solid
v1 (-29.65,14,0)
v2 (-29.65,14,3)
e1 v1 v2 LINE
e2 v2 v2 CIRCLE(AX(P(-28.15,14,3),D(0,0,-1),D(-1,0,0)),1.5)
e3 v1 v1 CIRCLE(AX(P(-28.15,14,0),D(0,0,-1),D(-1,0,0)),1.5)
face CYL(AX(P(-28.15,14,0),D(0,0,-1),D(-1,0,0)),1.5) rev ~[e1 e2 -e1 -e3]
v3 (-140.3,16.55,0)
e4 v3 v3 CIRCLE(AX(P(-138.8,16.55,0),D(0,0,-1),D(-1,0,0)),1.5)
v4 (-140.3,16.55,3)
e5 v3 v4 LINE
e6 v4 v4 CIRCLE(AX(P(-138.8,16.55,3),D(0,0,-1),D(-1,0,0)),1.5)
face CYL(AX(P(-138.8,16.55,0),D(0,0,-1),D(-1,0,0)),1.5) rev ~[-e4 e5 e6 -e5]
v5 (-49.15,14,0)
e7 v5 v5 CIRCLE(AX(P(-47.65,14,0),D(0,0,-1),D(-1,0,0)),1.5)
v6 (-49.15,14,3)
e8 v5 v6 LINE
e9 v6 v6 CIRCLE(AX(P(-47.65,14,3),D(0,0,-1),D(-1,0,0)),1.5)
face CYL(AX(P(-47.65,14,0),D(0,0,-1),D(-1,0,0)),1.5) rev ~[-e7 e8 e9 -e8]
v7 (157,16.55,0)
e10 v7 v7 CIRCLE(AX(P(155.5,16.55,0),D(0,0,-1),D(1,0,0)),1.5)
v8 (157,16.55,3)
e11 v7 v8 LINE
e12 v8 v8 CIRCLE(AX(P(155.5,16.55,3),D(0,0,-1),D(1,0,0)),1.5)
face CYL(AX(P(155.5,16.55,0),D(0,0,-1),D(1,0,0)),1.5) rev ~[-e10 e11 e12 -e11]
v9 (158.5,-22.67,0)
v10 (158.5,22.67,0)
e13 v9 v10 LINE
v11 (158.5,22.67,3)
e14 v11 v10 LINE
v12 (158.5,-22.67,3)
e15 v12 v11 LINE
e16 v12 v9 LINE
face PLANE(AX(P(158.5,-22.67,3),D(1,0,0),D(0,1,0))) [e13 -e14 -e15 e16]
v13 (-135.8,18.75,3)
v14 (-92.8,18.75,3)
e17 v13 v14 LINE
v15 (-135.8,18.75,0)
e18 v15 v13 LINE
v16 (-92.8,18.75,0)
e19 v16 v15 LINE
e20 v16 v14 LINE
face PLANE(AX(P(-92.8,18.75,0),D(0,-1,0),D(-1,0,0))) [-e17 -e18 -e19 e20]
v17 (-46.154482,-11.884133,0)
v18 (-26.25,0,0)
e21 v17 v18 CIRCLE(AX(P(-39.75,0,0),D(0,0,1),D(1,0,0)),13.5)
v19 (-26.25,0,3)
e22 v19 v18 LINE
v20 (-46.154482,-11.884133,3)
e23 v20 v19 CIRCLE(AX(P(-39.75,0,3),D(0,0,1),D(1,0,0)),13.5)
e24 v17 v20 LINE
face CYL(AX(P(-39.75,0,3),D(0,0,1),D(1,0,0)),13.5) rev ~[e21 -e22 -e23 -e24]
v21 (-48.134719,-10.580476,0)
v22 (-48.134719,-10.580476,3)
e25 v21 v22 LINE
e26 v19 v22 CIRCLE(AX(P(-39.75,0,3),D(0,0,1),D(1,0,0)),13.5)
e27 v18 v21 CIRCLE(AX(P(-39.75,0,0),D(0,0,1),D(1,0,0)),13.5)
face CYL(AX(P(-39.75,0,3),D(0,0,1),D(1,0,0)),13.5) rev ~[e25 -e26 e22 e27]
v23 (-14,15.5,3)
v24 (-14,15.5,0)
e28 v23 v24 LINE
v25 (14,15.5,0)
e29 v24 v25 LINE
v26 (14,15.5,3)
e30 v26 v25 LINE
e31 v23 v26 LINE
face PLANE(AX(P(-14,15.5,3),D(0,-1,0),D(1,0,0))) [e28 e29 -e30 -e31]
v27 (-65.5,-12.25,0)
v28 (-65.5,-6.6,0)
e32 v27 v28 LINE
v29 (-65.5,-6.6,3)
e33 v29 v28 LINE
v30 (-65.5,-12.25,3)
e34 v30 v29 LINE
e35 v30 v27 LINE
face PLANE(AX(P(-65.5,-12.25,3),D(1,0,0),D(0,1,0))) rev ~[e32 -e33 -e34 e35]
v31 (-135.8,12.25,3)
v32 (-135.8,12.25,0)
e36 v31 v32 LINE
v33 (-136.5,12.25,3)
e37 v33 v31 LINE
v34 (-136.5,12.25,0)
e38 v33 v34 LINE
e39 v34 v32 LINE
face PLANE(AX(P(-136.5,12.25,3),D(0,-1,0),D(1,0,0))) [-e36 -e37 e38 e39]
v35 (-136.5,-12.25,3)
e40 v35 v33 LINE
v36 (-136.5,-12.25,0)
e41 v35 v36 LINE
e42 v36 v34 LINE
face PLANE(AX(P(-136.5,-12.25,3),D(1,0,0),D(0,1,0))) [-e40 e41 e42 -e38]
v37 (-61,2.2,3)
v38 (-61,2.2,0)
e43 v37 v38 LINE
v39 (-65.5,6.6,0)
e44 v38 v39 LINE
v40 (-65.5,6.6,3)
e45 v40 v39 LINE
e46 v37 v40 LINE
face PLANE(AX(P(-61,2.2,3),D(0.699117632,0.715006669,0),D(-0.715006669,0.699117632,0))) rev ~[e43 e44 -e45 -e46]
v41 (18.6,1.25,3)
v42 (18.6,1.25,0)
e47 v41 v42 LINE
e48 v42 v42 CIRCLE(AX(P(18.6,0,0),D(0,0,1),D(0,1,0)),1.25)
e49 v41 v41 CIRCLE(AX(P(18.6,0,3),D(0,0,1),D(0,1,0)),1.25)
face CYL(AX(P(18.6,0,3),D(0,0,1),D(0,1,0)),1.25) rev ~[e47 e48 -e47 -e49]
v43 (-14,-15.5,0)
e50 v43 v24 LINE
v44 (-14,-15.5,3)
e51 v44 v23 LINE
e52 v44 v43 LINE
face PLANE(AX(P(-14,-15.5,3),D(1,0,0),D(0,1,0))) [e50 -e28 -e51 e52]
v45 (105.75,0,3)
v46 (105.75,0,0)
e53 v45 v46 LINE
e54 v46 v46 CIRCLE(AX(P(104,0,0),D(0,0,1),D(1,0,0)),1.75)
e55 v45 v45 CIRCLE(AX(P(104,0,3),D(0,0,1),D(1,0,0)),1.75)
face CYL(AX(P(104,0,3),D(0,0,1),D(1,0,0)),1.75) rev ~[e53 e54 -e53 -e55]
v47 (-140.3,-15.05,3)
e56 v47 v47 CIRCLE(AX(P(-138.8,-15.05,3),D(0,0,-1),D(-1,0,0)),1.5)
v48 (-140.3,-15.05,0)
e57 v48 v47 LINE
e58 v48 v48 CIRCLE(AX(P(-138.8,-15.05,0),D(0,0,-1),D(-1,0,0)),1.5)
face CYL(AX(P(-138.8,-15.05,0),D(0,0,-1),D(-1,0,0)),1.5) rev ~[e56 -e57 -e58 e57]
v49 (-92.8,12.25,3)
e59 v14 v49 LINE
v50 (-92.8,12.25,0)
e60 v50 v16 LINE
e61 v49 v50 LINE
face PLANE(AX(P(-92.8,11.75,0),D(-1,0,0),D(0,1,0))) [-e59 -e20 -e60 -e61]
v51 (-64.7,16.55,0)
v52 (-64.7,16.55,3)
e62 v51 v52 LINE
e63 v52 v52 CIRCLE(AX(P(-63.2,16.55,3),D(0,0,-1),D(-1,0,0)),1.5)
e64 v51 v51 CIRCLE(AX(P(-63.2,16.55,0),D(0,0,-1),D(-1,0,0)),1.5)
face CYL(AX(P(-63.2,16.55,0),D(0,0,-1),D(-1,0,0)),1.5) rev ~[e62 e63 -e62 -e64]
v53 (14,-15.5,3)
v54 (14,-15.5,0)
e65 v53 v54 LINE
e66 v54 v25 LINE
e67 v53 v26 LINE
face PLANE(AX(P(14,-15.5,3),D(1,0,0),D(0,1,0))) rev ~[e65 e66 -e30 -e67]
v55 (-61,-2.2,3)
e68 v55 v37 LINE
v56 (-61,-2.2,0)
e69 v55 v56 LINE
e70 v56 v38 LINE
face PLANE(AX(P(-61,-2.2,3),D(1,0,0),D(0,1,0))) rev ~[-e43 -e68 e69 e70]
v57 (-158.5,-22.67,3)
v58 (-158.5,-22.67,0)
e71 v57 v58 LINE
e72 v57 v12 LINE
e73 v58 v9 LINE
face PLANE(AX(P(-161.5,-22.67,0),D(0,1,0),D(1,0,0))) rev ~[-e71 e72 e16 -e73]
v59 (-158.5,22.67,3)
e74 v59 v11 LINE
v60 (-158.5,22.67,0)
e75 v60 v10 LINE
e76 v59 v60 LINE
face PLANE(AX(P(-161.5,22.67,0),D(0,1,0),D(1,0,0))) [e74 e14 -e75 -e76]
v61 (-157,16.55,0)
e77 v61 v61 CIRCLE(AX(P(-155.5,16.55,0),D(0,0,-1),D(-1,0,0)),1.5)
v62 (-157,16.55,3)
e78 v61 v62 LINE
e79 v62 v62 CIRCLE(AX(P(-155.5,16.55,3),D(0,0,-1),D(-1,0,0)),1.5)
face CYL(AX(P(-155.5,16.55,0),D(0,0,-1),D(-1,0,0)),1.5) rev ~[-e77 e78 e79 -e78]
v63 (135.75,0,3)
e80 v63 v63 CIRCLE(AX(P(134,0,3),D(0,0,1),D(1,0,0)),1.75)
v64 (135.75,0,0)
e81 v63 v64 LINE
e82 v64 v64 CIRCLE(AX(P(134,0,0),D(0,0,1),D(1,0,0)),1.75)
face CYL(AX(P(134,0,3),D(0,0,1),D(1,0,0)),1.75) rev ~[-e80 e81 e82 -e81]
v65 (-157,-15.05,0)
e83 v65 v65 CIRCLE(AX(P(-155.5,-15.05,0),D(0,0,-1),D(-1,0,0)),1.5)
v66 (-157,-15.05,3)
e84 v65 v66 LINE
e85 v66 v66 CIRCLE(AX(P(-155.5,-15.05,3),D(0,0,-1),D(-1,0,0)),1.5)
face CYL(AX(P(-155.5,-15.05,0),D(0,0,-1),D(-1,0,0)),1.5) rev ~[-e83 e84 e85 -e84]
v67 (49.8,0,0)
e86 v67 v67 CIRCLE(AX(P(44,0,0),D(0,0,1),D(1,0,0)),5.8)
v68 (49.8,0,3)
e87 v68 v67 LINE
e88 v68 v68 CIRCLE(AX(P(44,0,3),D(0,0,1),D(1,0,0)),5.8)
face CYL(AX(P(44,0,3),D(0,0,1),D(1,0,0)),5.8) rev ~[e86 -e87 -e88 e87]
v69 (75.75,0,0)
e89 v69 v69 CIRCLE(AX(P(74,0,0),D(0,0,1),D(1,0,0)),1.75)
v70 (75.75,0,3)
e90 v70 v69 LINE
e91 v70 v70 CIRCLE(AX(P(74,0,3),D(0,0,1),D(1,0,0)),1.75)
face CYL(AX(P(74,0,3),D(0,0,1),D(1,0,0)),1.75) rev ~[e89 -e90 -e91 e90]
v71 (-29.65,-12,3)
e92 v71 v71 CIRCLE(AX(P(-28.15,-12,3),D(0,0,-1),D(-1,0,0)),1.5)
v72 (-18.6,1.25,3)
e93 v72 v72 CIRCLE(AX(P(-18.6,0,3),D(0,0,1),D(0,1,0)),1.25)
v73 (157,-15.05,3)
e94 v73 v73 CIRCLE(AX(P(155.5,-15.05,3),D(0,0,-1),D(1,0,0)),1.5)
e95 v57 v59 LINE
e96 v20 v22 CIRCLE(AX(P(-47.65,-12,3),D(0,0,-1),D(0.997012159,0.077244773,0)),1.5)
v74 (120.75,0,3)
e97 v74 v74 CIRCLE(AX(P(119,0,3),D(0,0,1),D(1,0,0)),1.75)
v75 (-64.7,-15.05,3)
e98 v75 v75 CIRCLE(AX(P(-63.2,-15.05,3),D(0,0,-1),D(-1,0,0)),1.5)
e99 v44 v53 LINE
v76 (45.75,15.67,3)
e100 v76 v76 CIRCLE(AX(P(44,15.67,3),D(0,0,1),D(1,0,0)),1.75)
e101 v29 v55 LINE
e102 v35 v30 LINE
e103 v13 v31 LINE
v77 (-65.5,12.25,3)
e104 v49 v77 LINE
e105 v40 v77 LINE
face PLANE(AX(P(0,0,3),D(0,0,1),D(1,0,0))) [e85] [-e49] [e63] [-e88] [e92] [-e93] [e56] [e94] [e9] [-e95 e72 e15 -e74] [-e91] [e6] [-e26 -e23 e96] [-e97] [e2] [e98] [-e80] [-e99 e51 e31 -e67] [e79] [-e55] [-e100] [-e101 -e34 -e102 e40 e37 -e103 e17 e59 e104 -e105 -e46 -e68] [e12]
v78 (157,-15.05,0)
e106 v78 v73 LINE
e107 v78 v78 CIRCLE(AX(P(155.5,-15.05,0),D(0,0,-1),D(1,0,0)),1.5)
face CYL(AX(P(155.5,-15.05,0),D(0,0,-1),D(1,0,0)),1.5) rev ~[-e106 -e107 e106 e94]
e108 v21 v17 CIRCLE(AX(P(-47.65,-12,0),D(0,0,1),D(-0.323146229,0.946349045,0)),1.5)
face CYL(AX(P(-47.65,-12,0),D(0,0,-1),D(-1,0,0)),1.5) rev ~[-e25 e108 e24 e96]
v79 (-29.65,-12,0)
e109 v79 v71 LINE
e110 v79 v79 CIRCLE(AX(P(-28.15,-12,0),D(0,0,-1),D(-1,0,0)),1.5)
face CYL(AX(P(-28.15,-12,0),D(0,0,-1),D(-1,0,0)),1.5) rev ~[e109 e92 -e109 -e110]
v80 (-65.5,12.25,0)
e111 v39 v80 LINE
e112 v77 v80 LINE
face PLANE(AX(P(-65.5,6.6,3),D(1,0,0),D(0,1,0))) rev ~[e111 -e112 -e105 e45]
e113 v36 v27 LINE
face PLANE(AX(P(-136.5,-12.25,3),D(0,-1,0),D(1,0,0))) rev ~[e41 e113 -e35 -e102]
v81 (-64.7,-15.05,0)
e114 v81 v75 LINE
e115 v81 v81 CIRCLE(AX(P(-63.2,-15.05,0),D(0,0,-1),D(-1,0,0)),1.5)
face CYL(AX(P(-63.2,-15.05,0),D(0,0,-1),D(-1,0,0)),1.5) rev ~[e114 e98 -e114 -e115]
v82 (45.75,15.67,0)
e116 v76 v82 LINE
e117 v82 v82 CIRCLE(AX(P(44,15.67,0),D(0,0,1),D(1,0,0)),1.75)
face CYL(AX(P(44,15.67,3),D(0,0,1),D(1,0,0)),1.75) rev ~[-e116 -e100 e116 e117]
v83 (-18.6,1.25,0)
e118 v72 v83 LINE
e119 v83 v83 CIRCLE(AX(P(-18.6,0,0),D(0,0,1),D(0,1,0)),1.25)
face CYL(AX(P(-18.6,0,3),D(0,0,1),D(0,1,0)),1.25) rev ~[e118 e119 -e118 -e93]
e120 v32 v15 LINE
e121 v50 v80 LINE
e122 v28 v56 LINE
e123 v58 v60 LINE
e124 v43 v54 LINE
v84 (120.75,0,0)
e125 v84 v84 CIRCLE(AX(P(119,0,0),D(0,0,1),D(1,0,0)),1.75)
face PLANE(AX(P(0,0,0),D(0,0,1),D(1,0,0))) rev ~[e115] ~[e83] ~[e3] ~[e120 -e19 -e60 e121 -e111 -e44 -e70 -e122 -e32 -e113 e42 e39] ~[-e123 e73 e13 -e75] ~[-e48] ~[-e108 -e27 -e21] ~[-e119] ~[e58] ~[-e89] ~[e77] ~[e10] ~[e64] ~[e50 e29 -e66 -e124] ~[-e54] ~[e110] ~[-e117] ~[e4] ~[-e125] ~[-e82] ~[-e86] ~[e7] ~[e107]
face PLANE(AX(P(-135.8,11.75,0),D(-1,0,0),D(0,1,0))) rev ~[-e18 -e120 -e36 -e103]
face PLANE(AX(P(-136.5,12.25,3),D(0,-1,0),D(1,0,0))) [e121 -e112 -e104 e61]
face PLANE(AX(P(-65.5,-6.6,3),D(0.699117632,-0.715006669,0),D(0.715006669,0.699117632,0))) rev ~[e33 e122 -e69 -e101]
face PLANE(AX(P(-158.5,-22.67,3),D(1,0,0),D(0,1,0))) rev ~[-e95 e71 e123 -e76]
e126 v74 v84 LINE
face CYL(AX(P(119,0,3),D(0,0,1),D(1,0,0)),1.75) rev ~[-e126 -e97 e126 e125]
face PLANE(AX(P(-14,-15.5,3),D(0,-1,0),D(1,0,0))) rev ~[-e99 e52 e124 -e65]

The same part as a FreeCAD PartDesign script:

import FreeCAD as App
import Part
import Sketcher

V = App.Vector


def add_polygon(sketch, points):
    """Adds a closed chain of lines whose ends are joined by coincident constraints."""
    first, n = sketch.GeometryCount, len(points)
    for a, b in zip(points, points[1:] + points[:1]):
        sketch.addGeometry(Part.LineSegment(App.Vector(*a, 0), App.Vector(*b, 0)), False)
    for i in range(n):
        sketch.addConstraint(Sketcher.Constraint("Coincident", first + i, 2, first + (i + 1) % n, 1))

doc = App.newDocument("Part")
body = doc.addObject("PartDesign::Body", "Body")

# Sketch on XY plane
sketch1 = body.newObject("Sketcher::SketchObject", "Sketch")
sketch1.AttachmentSupport = (doc.getObject("XY_Plane"), [""])
sketch1.MapMode = "FlatFace"
add_polygon(sketch1, [(-162, 23), (-162, -23), (162, -23), (162, 23)])  # lines 0-3
sketch1.addConstraint(Sketcher.Constraint("Vertical", 0))
sketch1.addConstraint(Sketcher.Constraint("Horizontal", 1))
sketch1.addConstraint(Sketcher.Constraint("Vertical", 2))
sketch1.addConstraint(Sketcher.Constraint("Horizontal", 3))
sketch1.addConstraint(Sketcher.Constraint("Symmetric", 0, 2, 2, 2, -1, 1))
sketch1.addConstraint(Sketcher.Constraint("DistanceX", 1, 1, 1, 2, 323.0))
sketch1.addConstraint(Sketcher.Constraint("DistanceY", 0, 2, 0, 1, 45.34))
pad1 = body.newObject("PartDesign::Pad", "Pad")
pad1.Profile = sketch1
pad1.Length = 3

# Sketch on XY plane
sketch2 = body.newObject("Sketcher::SketchObject", "Sketch001")
sketch2.AttachmentSupport = (doc.getObject("XY_Plane"), [""])
sketch2.MapMode = "FlatFace"
sketch2.AttachmentOffset = App.Placement(V(0, 0, 3), App.Rotation())
add_polygon(sketch2, [(-136.5, 12.2), (-136.5, -12.2), (-65.5, -12.2), (-65.5, -6.6), (-61, -2.2), (-61, 2.2), (-65.5, 6.6), (-65.5, 12.2)])  # lines 0-7
sketch2.addGeometry(Part.Circle(V(-39.8, 0, 0), V(0, 0, 1), 13.5), False)  # 8
add_polygon(sketch2, [(-14, 15.5), (-14, -15.5), (14, -15.5), (14, 15.5)])  # lines 9-12
sketch2.addGeometry(Part.Circle(V(44, 0, 0), V(0, 0, 1), 5.8), False)  # 13
sketch2.addGeometry(Part.Circle(V(44, 15.7, 0), V(0, 0, 1), 1.8), False)  # 14
sketch2.addGeometry(Part.Circle(V(74, 0, 0), V(0, 0, 1), 1.8), False)  # 15
sketch2.addGeometry(Part.Circle(V(104, 0, 0), V(0, 0, 1), 1.8), False)  # 16
sketch2.addGeometry(Part.Circle(V(119, 0, 0), V(0, 0, 1), 1.8), False)  # 17
sketch2.addGeometry(Part.Circle(V(134, 0, 0), V(0, 0, 1), 1.8), False)  # 18
sketch2.addConstraint(Sketcher.Constraint("Vertical", 0))
sketch2.addConstraint(Sketcher.Constraint("Horizontal", 1))
sketch2.addConstraint(Sketcher.Constraint("Vertical", 2))
sketch2.addConstraint(Sketcher.Constraint("Vertical", 4))
sketch2.addConstraint(Sketcher.Constraint("Vertical", 6))
sketch2.addConstraint(Sketcher.Constraint("Horizontal", 7))
sketch2.addConstraint(Sketcher.Constraint("Vertical", 9))
sketch2.addConstraint(Sketcher.Constraint("Horizontal", 10))
sketch2.addConstraint(Sketcher.Constraint("Vertical", 11))
sketch2.addConstraint(Sketcher.Constraint("Horizontal", 12))
sketch2.addConstraint(Sketcher.Constraint("Equal", 14, 15))
sketch2.addConstraint(Sketcher.Constraint("Equal", 15, 16))
sketch2.addConstraint(Sketcher.Constraint("Equal", 16, 17))
sketch2.addConstraint(Sketcher.Constraint("Equal", 17, 18))
sketch2.addConstraint(Sketcher.Constraint("Symmetric", 9, 2, 11, 2, -1, 1))
sketch2.addConstraint(Sketcher.Constraint("Symmetric", 2, 2, 5, 2, -1))
sketch2.addConstraint(Sketcher.Constraint("PointOnObject", 8, 3, -1))
sketch2.addConstraint(Sketcher.Constraint("PointOnObject", 13, 3, -1))
sketch2.addConstraint(Sketcher.Constraint("PointOnObject", 15, 3, -1))
sketch2.addConstraint(Sketcher.Constraint("PointOnObject", 16, 3, -1))
sketch2.addConstraint(Sketcher.Constraint("PointOnObject", 17, 3, -1))
sketch2.addConstraint(Sketcher.Constraint("PointOnObject", 18, 3, -1))
sketch2.addConstraint(Sketcher.Constraint("Vertical", 13, 3, 14, 3))
sketch2.addConstraint(Sketcher.Constraint("Equal", 2, 6))
sketch2.addConstraint(Sketcher.Constraint("Equal", 3, 5))
sketch2.addConstraint(Sketcher.Constraint("Diameter", 8, 27.0))
sketch2.addConstraint(Sketcher.Constraint("Diameter", 13, 11.6))
sketch2.addConstraint(Sketcher.Constraint("Diameter", 14, 3.5))
sketch2.addConstraint(Sketcher.Constraint("DistanceX", 1, 1, 1, 2, 71.0))
sketch2.addConstraint(Sketcher.Constraint("DistanceX", 10, 1, 10, 2, 28.0))
sketch2.addConstraint(Sketcher.Constraint("DistanceY", 9, 2, 9, 1, 31.0))
sketch2.addConstraint(Sketcher.Constraint("DistanceY", 0, 2, 0, 1, 24.5))
sketch2.addConstraint(Sketcher.Constraint("DistanceY", 4, 1, 4, 2, 4.4))
sketch2.addConstraint(Sketcher.Constraint("DistanceX", -1, 1, 13, 3, 44.0))
sketch2.addConstraint(Sketcher.Constraint("DistanceX", -1, 1, 15, 3, 74.0))
sketch2.addConstraint(Sketcher.Constraint("DistanceX", -1, 1, 16, 3, 104.0))
sketch2.addConstraint(Sketcher.Constraint("DistanceX", -1, 1, 17, 3, 119.0))
sketch2.addConstraint(Sketcher.Constraint("DistanceX", -1, 1, 18, 3, 134.0))
sketch2.addConstraint(Sketcher.Constraint("DistanceX", 3, 2, -1, 1, 61.0))
sketch2.addConstraint(Sketcher.Constraint("DistanceY", 2, 1, 2, 2, 5.65))
sketch2.addConstraint(Sketcher.Constraint("DistanceX", 0, 2, -1, 1, 136.5))
sketch2.addConstraint(Sketcher.Constraint("DistanceX", 8, 3, -1, 1, 39.75))
sketch2.addConstraint(Sketcher.Constraint("DistanceY", -1, 1, 14, 3, 15.67))
pocket1 = body.newObject("PartDesign::Pocket", "Pocket")
pocket1.Profile = sketch2
pocket1.Type = "ThroughAll"
pocket1.Midplane = True

# Sketch on XY plane
sketch3 = body.newObject("Sketcher::SketchObject", "Sketch002")
sketch3.AttachmentSupport = (doc.getObject("XY_Plane"), [""])
sketch3.MapMode = "FlatFace"
sketch3.addGeometry(Part.Circle(V(-63.2, 16.6, 0), V(0, 0, 1), 1.5), False)  # 0
sketch3.addGeometry(Part.Circle(V(-63.2, -15.1, 0), V(0, 0, 1), 1.5), False)  # 1
sketch3.addGeometry(Part.Circle(V(-138.8, -15.1, 0), V(0, 0, 1), 1.5), False)  # 2
sketch3.addGeometry(Part.Circle(V(-138.8, 16.6, 0), V(0, 0, 1), 1.5), False)  # 3
sketch3.addGeometry(Part.Circle(V(-155.5, 16.6, 0), V(0, 0, 1), 1.5), False)  # 4
sketch3.addGeometry(Part.Circle(V(-155.5, -15.1, 0), V(0, 0, 1), 1.5), False)  # 5
sketch3.addGeometry(Part.Circle(V(155.5, -15.1, 0), V(0, 0, 1), 1.5), False)  # 6
sketch3.addGeometry(Part.Circle(V(155.5, 16.6, 0), V(0, 0, 1), 1.5), False)  # 7
add_polygon(sketch3, [(-92.8, 18.8), (-92.8, 11.8), (-135.8, 11.8), (-135.8, 18.8)])  # lines 8-11
sketch3.addConstraint(Sketcher.Constraint("Vertical", 8))
sketch3.addConstraint(Sketcher.Constraint("Horizontal", 9))
sketch3.addConstraint(Sketcher.Constraint("Vertical", 10))
sketch3.addConstraint(Sketcher.Constraint("Horizontal", 11))
sketch3.addConstraint(Sketcher.Constraint("Equal", 0, 1))
sketch3.addConstraint(Sketcher.Constraint("Equal", 1, 2))
sketch3.addConstraint(Sketcher.Constraint("Equal", 2, 3))
sketch3.addConstraint(Sketcher.Constraint("Equal", 3, 4))
sketch3.addConstraint(Sketcher.Constraint("Equal", 4, 5))
sketch3.addConstraint(Sketcher.Constraint("Equal", 5, 6))
sketch3.addConstraint(Sketcher.Constraint("Equal", 6, 7))
sketch3.addConstraint(Sketcher.Constraint("Symmetric", 5, 3, 6, 3, -2))
sketch3.addConstraint(Sketcher.Constraint("Symmetric", 4, 3, 7, 3, -2))
sketch3.addConstraint(Sketcher.Constraint("Horizontal", 1, 3, 2, 3))
sketch3.addConstraint(Sketcher.Constraint("Horizontal", 0, 3, 3, 3))
sketch3.addConstraint(Sketcher.Constraint("Horizontal", 3, 3, 4, 3))
sketch3.addConstraint(Sketcher.Constraint("Horizontal", 2, 3, 5, 3))
sketch3.addConstraint(Sketcher.Constraint("Vertical", 0, 3, 1, 3))
sketch3.addConstraint(Sketcher.Constraint("Vertical", 2, 3, 3, 3))
sketch3.addConstraint(Sketcher.Constraint("Vertical", 4, 3, 5, 3))
sketch3.addConstraint(Sketcher.Constraint("Diameter", 0, 3.0))
sketch3.addConstraint(Sketcher.Constraint("DistanceX", 9, 2, 9, 1, 43.0))
sketch3.addConstraint(Sketcher.Constraint("DistanceY", 8, 2, 8, 1, 7.0))
sketch3.addConstraint(Sketcher.Constraint("DistanceX", 5, 3, 6, 3, 311.0))
sketch3.addConstraint(Sketcher.Constraint("DistanceX", 3, 3, 8, 2, 46.0))
sketch3.addConstraint(Sketcher.Constraint("DistanceX", 0, 3, -1, 1, 63.2))
sketch3.addConstraint(Sketcher.Constraint("DistanceX", 2, 3, -1, 1, 138.8))
sketch3.addConstraint(Sketcher.Constraint("DistanceY", 1, 3, 0, 3, 31.6))
sketch3.addConstraint(Sketcher.Constraint("DistanceY", 8, 2, 0, 3, 4.8))
sketch3.addConstraint(Sketcher.Constraint("DistanceY", -1, 1, 0, 3, 16.55))
pocket2 = body.newObject("PartDesign::Pocket", "Pocket001")
pocket2.Profile = sketch3
pocket2.Length = 10
pocket2.Reversed = True

# Sketch on XY plane
sketch4 = body.newObject("Sketcher::SketchObject", "Sketch003")
sketch4.AttachmentSupport = (doc.getObject("XY_Plane"), [""])
sketch4.MapMode = "FlatFace"
sketch4.AttachmentOffset = App.Placement(V(0, 0, 3), App.Rotation())
sketch4.addGeometry(Part.Circle(V(18.6, 0, 0), V(0, 0, 1), 1.2), False)
sketch4.addGeometry(Part.Circle(V(-18.6, 0, 0), V(0, 0, 1), 1.2), False)
sketch4.addConstraint(Sketcher.Constraint("Equal", 0, 1))
sketch4.addConstraint(Sketcher.Constraint("Symmetric", 0, 3, 1, 3, -1, 1))
sketch4.addConstraint(Sketcher.Constraint("PointOnObject", 0, 3, -1))
sketch4.addConstraint(Sketcher.Constraint("Diameter", 0, 2.5))
sketch4.addConstraint(Sketcher.Constraint("DistanceX", -1, 1, 0, 3, 18.6))
pocket3 = body.newObject("PartDesign::Pocket", "Pocket002")
pocket3.Profile = sketch4
pocket3.Length = 10

# Sketch on XY plane
sketch5 = body.newObject("Sketcher::SketchObject", "Sketch004")
sketch5.AttachmentSupport = (doc.getObject("XY_Plane"), [""])
sketch5.MapMode = "FlatFace"
sketch5.AttachmentOffset = App.Placement(V(0, 0, 3), App.Rotation())
add_polygon(sketch5, [(-161.5, 22.7), (-161.5, -22.7), (-158.5, -22.7), (-158.5, 22.7)])  # lines 0-3
add_polygon(sketch5, [(158.5, 22.7), (158.5, -22.7), (161.5, -22.7), (161.5, 22.7)])  # lines 4-7
sketch5.addConstraint(Sketcher.Constraint("Vertical", 0))
sketch5.addConstraint(Sketcher.Constraint("Horizontal", 1))
sketch5.addConstraint(Sketcher.Constraint("Vertical", 2))
sketch5.addConstraint(Sketcher.Constraint("Horizontal", 3))
sketch5.addConstraint(Sketcher.Constraint("Vertical", 4))
sketch5.addConstraint(Sketcher.Constraint("Horizontal", 5))
sketch5.addConstraint(Sketcher.Constraint("Vertical", 6))
sketch5.addConstraint(Sketcher.Constraint("Horizontal", 7))
sketch5.addConstraint(Sketcher.Constraint("Symmetric", 2, 2, 4, 2, -1, 1))
sketch5.addConstraint(Sketcher.Constraint("Symmetric", 0, 2, 6, 2, -1, 1))
sketch5.addConstraint(Sketcher.Constraint("Horizontal", 1, 2, 4, 2))
sketch5.addConstraint(Sketcher.Constraint("DistanceX", 1, 1, 1, 2, 3.0))
sketch5.addConstraint(Sketcher.Constraint("DistanceX", 1, 2, 4, 2, 317.0))
sketch5.addConstraint(Sketcher.Constraint("DistanceY", 0, 2, 0, 1, 45.34))
pocket4 = body.newObject("PartDesign::Pocket", "Pocket003")
pocket4.Profile = sketch5
pocket4.Length = 10

# Sketch on XY plane
sketch6 = body.newObject("Sketcher::SketchObject", "Sketch005")
sketch6.AttachmentSupport = (doc.getObject("XY_Plane"), [""])
sketch6.MapMode = "FlatFace"
sketch6.addGeometry(Part.Circle(V(-28.1, -12, 0), V(0, 0, 1), 1.5), False)
sketch6.addGeometry(Part.Circle(V(-47.6, -12, 0), V(0, 0, 1), 1.5), False)
sketch6.addGeometry(Part.Circle(V(-47.6, 14, 0), V(0, 0, 1), 1.5), False)
sketch6.addGeometry(Part.Circle(V(-28.1, 14, 0), V(0, 0, 1), 1.5), False)
sketch6.addConstraint(Sketcher.Constraint("Equal", 0, 1))
sketch6.addConstraint(Sketcher.Constraint("Equal", 1, 2))
sketch6.addConstraint(Sketcher.Constraint("Equal", 2, 3))
sketch6.addConstraint(Sketcher.Constraint("Horizontal", 0, 3, 1, 3))
sketch6.addConstraint(Sketcher.Constraint("Horizontal", 2, 3, 3, 3))
sketch6.addConstraint(Sketcher.Constraint("Vertical", 1, 3, 2, 3))
sketch6.addConstraint(Sketcher.Constraint("Vertical", 0, 3, 3, 3))
sketch6.addConstraint(Sketcher.Constraint("Diameter", 0, 3.0))
sketch6.addConstraint(Sketcher.Constraint("DistanceY", 0, 3, -1, 1, 12.0))
sketch6.addConstraint(Sketcher.Constraint("DistanceY", -1, 1, 2, 3, 14.0))
sketch6.addConstraint(Sketcher.Constraint("DistanceX", 1, 3, 0, 3, 19.5))
sketch6.addConstraint(Sketcher.Constraint("DistanceX", 0, 3, -1, 1, 28.15))
pocket5 = body.newObject("PartDesign::Pocket", "Pocket004")
pocket5.Profile = sketch6
pocket5.Type = "ThroughAll"
pocket5.Reversed = True

doc.recompute()
